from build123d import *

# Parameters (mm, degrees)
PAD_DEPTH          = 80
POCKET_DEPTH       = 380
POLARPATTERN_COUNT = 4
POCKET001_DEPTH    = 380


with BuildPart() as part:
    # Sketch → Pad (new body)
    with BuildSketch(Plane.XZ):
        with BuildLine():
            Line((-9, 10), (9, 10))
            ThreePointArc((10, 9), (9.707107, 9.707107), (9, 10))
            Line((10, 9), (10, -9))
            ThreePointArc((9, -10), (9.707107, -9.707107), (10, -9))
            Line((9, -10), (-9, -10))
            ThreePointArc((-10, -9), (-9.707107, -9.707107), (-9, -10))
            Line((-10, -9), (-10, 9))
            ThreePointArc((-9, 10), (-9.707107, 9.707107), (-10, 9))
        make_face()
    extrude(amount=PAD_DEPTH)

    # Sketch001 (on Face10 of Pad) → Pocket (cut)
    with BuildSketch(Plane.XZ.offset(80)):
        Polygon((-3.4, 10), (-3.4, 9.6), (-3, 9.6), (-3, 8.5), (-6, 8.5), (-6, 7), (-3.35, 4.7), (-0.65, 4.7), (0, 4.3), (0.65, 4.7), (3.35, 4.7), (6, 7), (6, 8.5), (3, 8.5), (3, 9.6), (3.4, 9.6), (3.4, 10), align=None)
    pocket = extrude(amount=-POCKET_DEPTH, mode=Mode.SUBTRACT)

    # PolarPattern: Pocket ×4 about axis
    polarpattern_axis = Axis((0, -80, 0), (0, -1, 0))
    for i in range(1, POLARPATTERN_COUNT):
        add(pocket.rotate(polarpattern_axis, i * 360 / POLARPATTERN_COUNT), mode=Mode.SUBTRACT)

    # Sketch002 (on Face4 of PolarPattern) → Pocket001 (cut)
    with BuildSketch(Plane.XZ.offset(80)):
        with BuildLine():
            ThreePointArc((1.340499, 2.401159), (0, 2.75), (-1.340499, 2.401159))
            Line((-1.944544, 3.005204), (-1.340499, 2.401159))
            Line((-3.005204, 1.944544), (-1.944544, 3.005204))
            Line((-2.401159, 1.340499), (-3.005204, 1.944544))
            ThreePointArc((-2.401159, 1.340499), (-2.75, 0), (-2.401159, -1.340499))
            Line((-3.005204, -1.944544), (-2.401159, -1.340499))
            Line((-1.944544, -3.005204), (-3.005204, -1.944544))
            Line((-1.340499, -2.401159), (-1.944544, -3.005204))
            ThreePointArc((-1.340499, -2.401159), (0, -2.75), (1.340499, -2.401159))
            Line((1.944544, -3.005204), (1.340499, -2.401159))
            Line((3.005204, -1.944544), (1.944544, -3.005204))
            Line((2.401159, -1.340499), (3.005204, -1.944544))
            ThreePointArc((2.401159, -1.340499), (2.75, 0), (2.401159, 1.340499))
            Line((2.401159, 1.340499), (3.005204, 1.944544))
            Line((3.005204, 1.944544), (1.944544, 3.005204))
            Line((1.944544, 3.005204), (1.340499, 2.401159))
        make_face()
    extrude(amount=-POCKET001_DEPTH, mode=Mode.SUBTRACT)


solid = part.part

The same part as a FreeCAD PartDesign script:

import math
import FreeCAD as App
import Part
import Sketcher
from FreeCAD import Vector
Q = App.Units.Quantity

doc = App.newDocument("Part")
params = doc.addObject("Spreadsheet::Sheet", "Params")
for row, (alias, value) in enumerate([
    ("sketch1_radius", "0.999999 mm"),
    ("sketch1_width", "18 mm"),
    ("pad1_length", "80 mm"),
    ("sketch2_width", "3 mm"),
    ("sketch2_width2", "0.4 mm"),
    ("sketch2_width3", "2.7 mm"),
    ("sketch2_width4", "6.8 mm"),
    ("sketch2_height", "1.1 mm"),
    ("pocket1_length", "380 mm"),
    ("sketch3_length", "1.5 mm"),
    ("pocket2_length", "380 mm"),
], start=1):
    params.set(f"A{row}", alias)
    params.set(f"B{row}", "=" + value)
    params.setAlias(f"B{row}", alias)

body = doc.addObject("PartDesign::Body", "Body")

# Sketch on XZ plane
sketch1 = body.newObject("Sketcher::SketchObject", "Sketch")
sketch1.AttachmentSupport = (doc.getObject("XZ_Plane"), [""])
sketch1.MapMode = "FlatFace"
sketch1.addGeometry([
    Part.LineSegment(Vector(9, 10, 0), Vector(-9, 10, 0)),  # 0
    Part.ArcOfCircle(Part.Circle(Vector(-9, 9, 0), Vector(0, 0, 1), 1), math.radians(90), math.radians(180)),  # 1
    Part.LineSegment(Vector(-10, 9, 0), Vector(-10, -9, 0)),  # 2
    Part.ArcOfCircle(Part.Circle(Vector(-9, -9, 0), Vector(0, 0, 1), 1), math.radians(180), math.radians(270)),  # 3
    Part.LineSegment(Vector(-9, -10, 0), Vector(9, -10, 0)),  # 4
    Part.ArcOfCircle(Part.Circle(Vector(9, -9, 0), Vector(0, 0, 1), 1), math.radians(-90), math.radians(0)),  # 5
    Part.LineSegment(Vector(10, -9, 0), Vector(10, 9, 0)),  # 6
    Part.ArcOfCircle(Part.Circle(Vector(9, 9, 0), Vector(0, 0, 1), 1), math.radians(0), math.radians(90)),  # 7
], False)
sketch1.addConstraint([
    Sketcher.Constraint("Tangent", 0, 2, 1, 1),
    Sketcher.Constraint("Tangent", 1, 2, 2, 1),
    Sketcher.Constraint("Tangent", 2, 2, 3, 1),
    Sketcher.Constraint("Tangent", 3, 2, 4, 1),
    Sketcher.Constraint("Tangent", 4, 2, 5, 1),
    Sketcher.Constraint("Tangent", 5, 2, 6, 1),
    Sketcher.Constraint("Tangent", 6, 2, 7, 1),
    Sketcher.Constraint("Tangent", 7, 2, 0, 1),
    Sketcher.Constraint("Horizontal", 0),
    Sketcher.Constraint("Vertical", 2),
    Sketcher.Constraint("Horizontal", 4),
    Sketcher.Constraint("Vertical", 6),
    Sketcher.Constraint("Equal", 1, 3),
    Sketcher.Constraint("Equal", 3, 5),
    Sketcher.Constraint("Equal", 5, 7),
    Sketcher.Constraint("Symmetric", 1, 3, 5, 3, -1, 1),
    Sketcher.Constraint("Equal", 4, 2),
    Sketcher.Constraint("Radius", 1, Q("0.999999 mm")),
    Sketcher.Constraint("DistanceX", 0, 2, 0, 1, Q("18 mm")),
])
sketch1.setExpression("Constraints[17]", "Params.sketch1_radius")
sketch1.setExpression("Constraints[18]", "Params.sketch1_width")
pad1 = body.newObject("PartDesign::Pad", "Pad")
pad1.Profile = sketch1
pad1.setExpression("Length", "Params.pad1_length")

# Sketch on XZ plane
sketch2 = body.newObject("Sketcher::SketchObject", "Sketch001")
sketch2.AttachmentSupport = (doc.getObject("XZ_Plane"), [""])
sketch2.MapMode = "FlatFace"
sketch2.AttachmentOffset = App.Placement(Vector(0, 0, 80), App.Rotation())
sketch2.addGeometry([
    Part.LineSegment(Vector(-3.4, 10, 0), Vector(-3.4, 9.6, 0)),  # 0
    Part.LineSegment(Vector(-3.4, 9.6, 0), Vector(-3, 9.6, 0)),  # 1
    Part.LineSegment(Vector(-3, 9.6, 0), Vector(-3, 8.5, 0)),  # 2
    Part.LineSegment(Vector(-3, 8.5, 0), Vector(-6, 8.5, 0)),  # 3
    Part.LineSegment(Vector(-6, 8.5, 0), Vector(-6, 7, 0)),  # 4
    Part.LineSegment(Vector(-6, 7, 0), Vector(-3.35, 4.7, 0)),  # 5
    Part.LineSegment(Vector(-3.35, 4.7, 0), Vector(-0.65, 4.7, 0)),  # 6
    Part.LineSegment(Vector(-0.65, 4.7, 0), Vector(0, 4.3, 0)),  # 7
    Part.LineSegment(Vector(0, 4.3, 0), Vector(0.65, 4.7, 0)),  # 8
    Part.LineSegment(Vector(0.65, 4.7, 0), Vector(3.35, 4.7, 0)),  # 9
    Part.LineSegment(Vector(3.35, 4.7, 0), Vector(6, 7, 0)),  # 10
    Part.LineSegment(Vector(6, 7, 0), Vector(6, 8.5, 0)),  # 11
    Part.LineSegment(Vector(6, 8.5, 0), Vector(3, 8.5, 0)),  # 12
    Part.LineSegment(Vector(3, 8.5, 0), Vector(3, 9.6, 0)),  # 13
    Part.LineSegment(Vector(3, 9.6, 0), Vector(3.4, 9.6, 0)),  # 14
    Part.LineSegment(Vector(3.4, 9.6, 0), Vector(3.4, 10, 0)),  # 15
    Part.LineSegment(Vector(3.4, 10, 0), Vector(-3.4, 10, 0)),  # 16
], False)
sketch2.addConstraint([
    Sketcher.Constraint("Coincident", 0, 2, 1, 1),
    Sketcher.Constraint("Coincident", 1, 2, 2, 1),
    Sketcher.Constraint("Coincident", 2, 2, 3, 1),
    Sketcher.Constraint("Coincident", 3, 2, 4, 1),
    Sketcher.Constraint("Coincident", 4, 2, 5, 1),
    Sketcher.Constraint("Coincident", 5, 2, 6, 1),
    Sketcher.Constraint("Coincident", 6, 2, 7, 1),
    Sketcher.Constraint("Coincident", 7, 2, 8, 1),
    Sketcher.Constraint("Coincident", 8, 2, 9, 1),
    Sketcher.Constraint("Coincident", 9, 2, 10, 1),
    Sketcher.Constraint("Coincident", 10, 2, 11, 1),
    Sketcher.Constraint("Coincident", 11, 2, 12, 1),
    Sketcher.Constraint("Coincident", 12, 2, 13, 1),
    Sketcher.Constraint("Coincident", 13, 2, 14, 1),
    Sketcher.Constraint("Coincident", 14, 2, 15, 1),
    Sketcher.Constraint("Coincident", 15, 2, 16, 1),
    Sketcher.Constraint("Coincident", 16, 2, 0, 1),
    Sketcher.Constraint("Vertical", 0),
    Sketcher.Constraint("Horizontal", 1),
    Sketcher.Constraint("Vertical", 2),
    Sketcher.Constraint("Horizontal", 3),
    Sketcher.Constraint("Vertical", 4),
    Sketcher.Constraint("Horizontal", 6),
    Sketcher.Constraint("Horizontal", 9),
    Sketcher.Constraint("Vertical", 11),
    Sketcher.Constraint("Horizontal", 12),
    Sketcher.Constraint("Vertical", 13),
    Sketcher.Constraint("Horizontal", 14),
    Sketcher.Constraint("Vertical", 15),
    Sketcher.Constraint("Horizontal", 16),
    Sketcher.Constraint("Symmetric", 6, 2, 8, 2, -2),
    Sketcher.Constraint("Symmetric", 4, 2, 10, 2, -2),
    Sketcher.Constraint("Symmetric", 2, 2, 12, 2, -2),
    Sketcher.Constraint("Symmetric", 0, 2, 14, 2, -2),
    Sketcher.Constraint("PointOnObject", 7, 2, -2),
    Sketcher.Constraint("Equal", 6, 9),
    Sketcher.Constraint("Equal", 14, 0),
    Sketcher.Constraint("DistanceX", 3, 2, 3, 1, Q("3 mm")),
    Sketcher.Constraint("DistanceX", 1, 1, 1, 2, Q("0.4 mm")),
    Sketcher.Constraint("DistanceX", 6, 1, 6, 2, Q("2.7 mm")),
    Sketcher.Constraint("DistanceX", 16, 2, 16, 1, Q("6.8 mm")),
    Sketcher.Constraint("DistanceY", 2, 2, 2, 1, Q("1.1 mm")),
    Sketcher.Constraint("DistanceY", 4, 2, 4, 1, Q("1.5 mm")),
    Sketcher.Constraint("DistanceY", -1, 1, 4, 2, Q("7 mm")),
    Sketcher.Constraint("DistanceX", 5, 2, 8, 2, Q("4 mm")),
    Sketcher.Constraint("DistanceY", -1, 1, 5, 2, Q("4.7 mm")),
    Sketcher.Constraint("DistanceY", -1, 1, 7, 2, Q("4.3 mm")),
])
sketch2.setExpression("Constraints[37]", "Params.sketch2_width")
sketch2.setExpression("Constraints[38]", "Params.sketch2_width2")
sketch2.setExpression("Constraints[39]", "Params.sketch2_width3")
sketch2.setExpression("Constraints[40]", "Params.sketch2_width4")
sketch2.setExpression("Constraints[41]", "Params.sketch2_height")
pocket1 = body.newObject("PartDesign::Pocket", "Pocket")
pocket1.Profile = sketch2
pocket1.setExpression("Length", "Params.pocket1_length")
doc.recompute()

polarpattern = body.newObject("PartDesign::PolarPattern", "PolarPattern")
polarpattern.Originals = [pocket1]
polarpattern.Axis = (doc.getObject("Y_Axis"), [""])
polarpattern.Angle = 360
polarpattern.Occurrences = 4
body.Tip = polarpattern

# Sketch on XZ plane
sketch3 = body.newObject("Sketcher::SketchObject", "Sketch002")
sketch3.AttachmentSupport = (doc.getObject("XZ_Plane"), [""])
sketch3.MapMode = "FlatFace"
sketch3.AttachmentOffset = App.Placement(Vector(0, 0, 80), App.Rotation())
sketch3.addGeometry([
    Part.ArcOfCircle(Part.Circle(Vector(0, 0, 0), Vector(0, 0, 1), 2.8), math.radians(61), math.radians(119)),  # 0
    Part.LineSegment(Vector(-1.3, 2.4, 0), Vector(-1.9, 3, 0)),  # 1
    Part.LineSegment(Vector(-1.9, 3, 0), Vector(-3, 1.9, 0)),  # 2
    Part.LineSegment(Vector(-3, 1.9, 0), Vector(-2.4, 1.3, 0)),  # 3
    Part.ArcOfCircle(Part.Circle(Vector(0, 0, 0), Vector(0, 0, 1), 2.8), math.radians(151), math.radians(209)),  # 4
    Part.LineSegment(Vector(-2.4, -1.3, 0), Vector(-3, -1.9, 0)),  # 5
    Part.LineSegment(Vector(-3, -1.9, 0), Vector(-1.9, -3, 0)),  # 6
    Part.LineSegment(Vector(-1.9, -3, 0), Vector(-1.3, -2.4, 0)),  # 7
    Part.ArcOfCircle(Part.Circle(Vector(0, 0, 0), Vector(0, 0, 1), 2.8), math.radians(-119), math.radians(-61)),  # 8
    Part.LineSegment(Vector(1.3, -2.4, 0), Vector(1.9, -3, 0)),  # 9
    Part.LineSegment(Vector(1.9, -3, 0), Vector(3, -1.9, 0)),  # 10
    Part.LineSegment(Vector(3, -1.9, 0), Vector(2.4, -1.3, 0)),  # 11
    Part.ArcOfCircle(Part.Circle(Vector(0, 0, 0), Vector(0, 0, 1), 2.8), math.radians(-29), math.radians(29)),  # 12
    Part.LineSegment(Vector(2.4, 1.3, 0), Vector(3, 1.9, 0)),  # 13
    Part.LineSegment(Vector(3, 1.9, 0), Vector(1.9, 3, 0)),  # 14
    Part.LineSegment(Vector(1.9, 3, 0), Vector(1.3, 2.4, 0)),  # 15
], False)
sketch3.addConstraint([
    Sketcher.Constraint("Coincident", 0, 2, 1, 1),
    Sketcher.Constraint("Coincident", 1, 2, 2, 1),
    Sketcher.Constraint("Coincident", 2, 2, 3, 1),
    Sketcher.Constraint("Coincident", 3, 2, 4, 1),
    Sketcher.Constraint("Coincident", 4, 2, 5, 1),
    Sketcher.Constraint("Coincident", 5, 2, 6, 1),
    Sketcher.Constraint("Coincident", 6, 2, 7, 1),
    Sketcher.Constraint("Coincident", 7, 2, 8, 1),
    Sketcher.Constraint("Coincident", 8, 2, 9, 1),
    Sketcher.Constraint("Coincident", 9, 2, 10, 1),
    Sketcher.Constraint("Coincident", 10, 2, 11, 1),
    Sketcher.Constraint("Coincident", 11, 2, 12, 1),
    Sketcher.Constraint("Coincident", 12, 2, 13, 1),
    Sketcher.Constraint("Coincident", 13, 2, 14, 1),
    Sketcher.Constraint("Coincident", 14, 2, 15, 1),
    Sketcher.Constraint("Coincident", 15, 2, 0, 1),
    Sketcher.Constraint("Coincident", 0, 3, -1, 1),
    Sketcher.Constraint("Coincident", 4, 3, -1, 1),
    Sketcher.Constraint("Coincident", 8, 3, -1, 1),
    Sketcher.Constraint("Coincident", 12, 3, -1, 1),
    Sketcher.Constraint("Equal", 0, 4),
    Sketcher.Constraint("Equal", 4, 8),
    Sketcher.Constraint("Equal", 8, 12),
    Sketcher.Constraint("Symmetric", 1, 2, 9, 2, -1, 1),
    Sketcher.Constraint("Symmetric", 2, 2, 10, 2, -1, 1),
    Sketcher.Constraint("Symmetric", 5, 2, 13, 2, -1, 1),
    Sketcher.Constraint("Symmetric", 6, 2, 14, 2, -1, 1),
    Sketcher.Constraint("Symmetric", 6, 2, 9, 2, -2),
    Sketcher.Constraint("Symmetric", 5, 2, 10, 2, -2),
    Sketcher.Constraint("Perpendicular", 1, 2),
    Sketcher.Constraint("Perpendicular", 2, 3),
    Sketcher.Constraint("Perpendicular", 3, 5),
    Sketcher.Constraint("Perpendicular", 5, 6),
    Sketcher.Constraint("Perpendicular", 6, 7),
    Sketcher.Constraint("Perpendicular", 7, 9),
    Sketcher.Constraint("Perpendicular", 10, 11),
    Sketcher.Constraint("Perpendicular", 11, 13),
    Sketcher.Constraint("Perpendicular", 14, 15),
    Sketcher.Constraint("Equal", 1, 3),
    Sketcher.Constraint("Distance", 2, Q("1.5 mm")),
    Sketcher.Constraint("Radius", 0, Q("2.750003 mm")),
    Sketcher.Constraint("DistanceY", 8, 3, 1, 2, Q("3.005201 mm")),
])
sketch3.setExpression("Constraints[39]", "Params.sketch3_length")
pocket2 = body.newObject("PartDesign::Pocket", "Pocket001")
pocket2.Profile = sketch3
pocket2.setExpression("Length", "Params.pocket2_length")

doc.recompute()
